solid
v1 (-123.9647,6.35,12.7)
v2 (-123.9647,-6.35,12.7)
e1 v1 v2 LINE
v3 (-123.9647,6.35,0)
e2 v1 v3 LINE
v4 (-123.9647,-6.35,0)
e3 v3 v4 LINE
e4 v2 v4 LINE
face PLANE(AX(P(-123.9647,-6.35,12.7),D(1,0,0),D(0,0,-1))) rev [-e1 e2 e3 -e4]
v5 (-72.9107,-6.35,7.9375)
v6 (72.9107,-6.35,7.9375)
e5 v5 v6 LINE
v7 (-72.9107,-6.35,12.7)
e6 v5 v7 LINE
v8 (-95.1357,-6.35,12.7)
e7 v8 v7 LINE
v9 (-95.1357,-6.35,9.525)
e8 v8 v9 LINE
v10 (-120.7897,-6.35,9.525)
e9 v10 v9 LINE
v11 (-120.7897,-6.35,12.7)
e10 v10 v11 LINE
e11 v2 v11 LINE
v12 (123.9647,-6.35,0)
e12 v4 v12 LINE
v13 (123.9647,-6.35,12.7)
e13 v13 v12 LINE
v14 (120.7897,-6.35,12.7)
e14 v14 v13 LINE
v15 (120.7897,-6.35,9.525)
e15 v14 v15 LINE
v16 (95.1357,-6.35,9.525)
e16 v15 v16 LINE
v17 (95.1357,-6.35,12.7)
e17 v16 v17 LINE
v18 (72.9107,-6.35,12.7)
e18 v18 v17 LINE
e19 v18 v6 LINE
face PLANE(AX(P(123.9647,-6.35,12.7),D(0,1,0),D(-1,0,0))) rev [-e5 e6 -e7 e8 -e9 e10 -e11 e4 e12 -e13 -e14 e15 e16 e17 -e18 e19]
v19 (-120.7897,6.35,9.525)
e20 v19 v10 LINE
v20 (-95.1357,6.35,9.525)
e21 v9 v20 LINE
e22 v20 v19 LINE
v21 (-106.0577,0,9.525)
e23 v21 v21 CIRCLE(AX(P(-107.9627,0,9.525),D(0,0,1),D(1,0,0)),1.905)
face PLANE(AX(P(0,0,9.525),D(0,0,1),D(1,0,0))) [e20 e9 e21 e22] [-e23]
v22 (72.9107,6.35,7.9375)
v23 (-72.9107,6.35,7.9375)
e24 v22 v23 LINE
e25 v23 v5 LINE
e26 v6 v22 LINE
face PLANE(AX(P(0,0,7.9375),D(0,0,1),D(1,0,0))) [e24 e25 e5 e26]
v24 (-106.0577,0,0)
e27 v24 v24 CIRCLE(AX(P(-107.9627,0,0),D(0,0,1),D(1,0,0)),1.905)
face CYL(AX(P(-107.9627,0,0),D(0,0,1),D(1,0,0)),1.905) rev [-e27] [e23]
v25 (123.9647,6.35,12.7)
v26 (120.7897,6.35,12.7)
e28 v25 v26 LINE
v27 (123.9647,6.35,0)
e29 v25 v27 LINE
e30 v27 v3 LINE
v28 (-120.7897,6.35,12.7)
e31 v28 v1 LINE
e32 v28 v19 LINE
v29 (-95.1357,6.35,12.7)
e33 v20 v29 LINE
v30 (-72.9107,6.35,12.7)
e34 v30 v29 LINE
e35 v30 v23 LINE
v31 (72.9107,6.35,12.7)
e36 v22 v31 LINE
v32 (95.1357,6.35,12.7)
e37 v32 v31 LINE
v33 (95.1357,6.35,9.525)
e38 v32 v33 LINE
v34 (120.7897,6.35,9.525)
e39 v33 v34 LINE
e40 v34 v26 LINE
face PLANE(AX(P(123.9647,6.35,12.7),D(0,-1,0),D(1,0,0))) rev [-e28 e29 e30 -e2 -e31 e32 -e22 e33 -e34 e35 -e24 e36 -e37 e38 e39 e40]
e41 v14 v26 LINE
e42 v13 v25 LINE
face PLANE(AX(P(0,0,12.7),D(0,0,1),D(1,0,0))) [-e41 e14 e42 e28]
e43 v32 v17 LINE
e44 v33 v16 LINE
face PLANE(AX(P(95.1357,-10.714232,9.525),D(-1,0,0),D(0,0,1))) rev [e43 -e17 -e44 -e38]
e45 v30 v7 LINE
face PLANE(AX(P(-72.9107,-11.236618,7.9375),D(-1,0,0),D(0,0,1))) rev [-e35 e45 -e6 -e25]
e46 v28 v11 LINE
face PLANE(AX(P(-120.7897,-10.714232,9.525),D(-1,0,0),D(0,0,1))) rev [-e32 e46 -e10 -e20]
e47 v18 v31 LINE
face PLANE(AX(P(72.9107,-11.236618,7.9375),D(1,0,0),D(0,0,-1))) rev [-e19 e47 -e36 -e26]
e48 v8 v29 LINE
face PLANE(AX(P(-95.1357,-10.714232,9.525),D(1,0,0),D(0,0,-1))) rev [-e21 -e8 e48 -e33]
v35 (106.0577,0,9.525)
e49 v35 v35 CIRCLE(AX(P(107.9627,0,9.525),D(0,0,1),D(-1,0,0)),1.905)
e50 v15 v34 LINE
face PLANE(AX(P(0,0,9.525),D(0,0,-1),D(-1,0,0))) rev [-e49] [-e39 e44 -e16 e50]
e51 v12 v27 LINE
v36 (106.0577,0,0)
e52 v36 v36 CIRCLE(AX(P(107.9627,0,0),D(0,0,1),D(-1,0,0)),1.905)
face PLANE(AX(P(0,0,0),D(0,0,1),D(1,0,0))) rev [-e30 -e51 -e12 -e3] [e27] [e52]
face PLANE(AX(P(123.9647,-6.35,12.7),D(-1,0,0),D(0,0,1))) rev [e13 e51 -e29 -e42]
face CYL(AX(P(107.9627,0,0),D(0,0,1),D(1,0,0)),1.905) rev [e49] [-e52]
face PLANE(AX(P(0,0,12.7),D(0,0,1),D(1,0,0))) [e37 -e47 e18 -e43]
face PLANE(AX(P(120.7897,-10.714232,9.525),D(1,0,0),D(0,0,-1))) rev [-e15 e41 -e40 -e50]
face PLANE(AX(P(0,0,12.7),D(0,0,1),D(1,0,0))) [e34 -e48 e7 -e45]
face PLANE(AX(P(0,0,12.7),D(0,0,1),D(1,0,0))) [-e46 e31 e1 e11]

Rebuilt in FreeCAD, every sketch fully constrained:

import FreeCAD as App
import Part
import Sketcher
from FreeCAD import Vector
Q = App.Units.Quantity

doc = App.newDocument("Part")
params = doc.addObject("Spreadsheet::Sheet", "Params")
for row, (alias, value) in enumerate([
    ("sketch1_height", "0.5 in"),
    ("sketch1_width", "9.761 in"),
    ("pad1_length", "0.5 in"),
    ("sketch2_width", "1.01 in"),
    ("pocket1_length", "0.125 in"),
    ("sketch3_width", "5.741 in"),
    ("pocket2_length", "0.1875 in"),
    ("sketch4_diameter", "0.15 in"),
    ("pocket3_length", "0.375 in"),
], start=1):
    params.set(f"A{row}", alias)
    params.set(f"B{row}", "=" + value)
    params.setAlias(f"B{row}", alias)

body = doc.addObject("PartDesign::Body", "Body")

sketch1 = doc.addObject("Sketcher::SketchObject", "Sketch")
body.addObject(sketch1)
sketch1.AttachmentSupport = (doc.XY_Plane, [""])
sketch1.MapMode = "FlatFace"
sketch1.addGeometry(Part.LineSegment(Vector(-124, 6, 0), Vector(-124, -6, 0)), False)
sketch1.addGeometry(Part.LineSegment(Vector(-124, -6, 0), Vector(124, -6, 0)), False)
sketch1.addGeometry(Part.LineSegment(Vector(124, -6, 0), Vector(124, 6, 0)), False)
sketch1.addGeometry(Part.LineSegment(Vector(124, 6, 0), Vector(-124, 6, 0)), False)
sketch1.addConstraint(Sketcher.Constraint("Coincident", 0, 2, 1, 1))
sketch1.addConstraint(Sketcher.Constraint("Coincident", 1, 2, 2, 1))
sketch1.addConstraint(Sketcher.Constraint("Coincident", 2, 2, 3, 1))
sketch1.addConstraint(Sketcher.Constraint("Coincident", 3, 2, 0, 1))
sketch1.addConstraint(Sketcher.Constraint("Vertical", 0))
sketch1.addConstraint(Sketcher.Constraint("Horizontal", 1))
sketch1.addConstraint(Sketcher.Constraint("Vertical", 2))
sketch1.addConstraint(Sketcher.Constraint("Horizontal", 3))
sketch1.addConstraint(Sketcher.Constraint("Symmetric", 0, 2, 2, 2, -1, 1))
sketch1.addConstraint(Sketcher.Constraint("DistanceY", 0, 2, 0, 1, Q("0.5 in")))
sketch1.addConstraint(Sketcher.Constraint("DistanceX", 1, 1, 1, 2, Q("9.761 in")))
sketch1.setExpression("Constraints[9]", "Params.sketch1_height")
sketch1.setExpression("Constraints[10]", "Params.sketch1_width")
pad1 = doc.addObject("PartDesign::Pad", "Pad")
body.addObject(pad1)
pad1.Profile = sketch1
pad1.setExpression("Length", "Params.pad1_length")

sketch2 = doc.addObject("Sketcher::SketchObject", "Sketch001")
body.addObject(sketch2)
sketch2.AttachmentSupport = (doc.XY_Plane, [""])
sketch2.MapMode = "FlatFace"
sketch2.AttachmentOffset = App.Placement(Vector(0, 0, 0.5 * 25.4), App.Rotation())
sketch2.addGeometry(Part.LineSegment(Vector(-121, 11, 0), Vector(-121, -11, 0)), False)
sketch2.addGeometry(Part.LineSegment(Vector(-121, -11, 0), Vector(-95, -11, 0)), False)
sketch2.addGeometry(Part.LineSegment(Vector(-95, -11, 0), Vector(-95, 11, 0)), False)
sketch2.addGeometry(Part.LineSegment(Vector(-95, 11, 0), Vector(-121, 11, 0)), False)
sketch2.addGeometry(Part.LineSegment(Vector(95, 11, 0), Vector(95, -11, 0)), False)
sketch2.addGeometry(Part.LineSegment(Vector(95, -11, 0), Vector(121, -11, 0)), False)
sketch2.addGeometry(Part.LineSegment(Vector(121, -11, 0), Vector(121, 11, 0)), False)
sketch2.addGeometry(Part.LineSegment(Vector(121, 11, 0), Vector(95, 11, 0)), False)
sketch2.addConstraint(Sketcher.Constraint("Coincident", 0, 2, 1, 1))
sketch2.addConstraint(Sketcher.Constraint("Coincident", 1, 2, 2, 1))
sketch2.addConstraint(Sketcher.Constraint("Coincident", 2, 2, 3, 1))
sketch2.addConstraint(Sketcher.Constraint("Coincident", 3, 2, 0, 1))
sketch2.addConstraint(Sketcher.Constraint("Coincident", 4, 2, 5, 1))
sketch2.addConstraint(Sketcher.Constraint("Coincident", 5, 2, 6, 1))
sketch2.addConstraint(Sketcher.Constraint("Coincident", 6, 2, 7, 1))
sketch2.addConstraint(Sketcher.Constraint("Coincident", 7, 2, 4, 1))
sketch2.addConstraint(Sketcher.Constraint("Vertical", 0))
sketch2.addConstraint(Sketcher.Constraint("Horizontal", 1))
sketch2.addConstraint(Sketcher.Constraint("Vertical", 2))
sketch2.addConstraint(Sketcher.Constraint("Horizontal", 3))
sketch2.addConstraint(Sketcher.Constraint("Vertical", 4))
sketch2.addConstraint(Sketcher.Constraint("Horizontal", 5))
sketch2.addConstraint(Sketcher.Constraint("Vertical", 6))
sketch2.addConstraint(Sketcher.Constraint("Horizontal", 7))
sketch2.addConstraint(Sketcher.Constraint("Symmetric", 2, 2, 4, 2, -1, 1))
sketch2.addConstraint(Sketcher.Constraint("Symmetric", 0, 2, 6, 2, -1, 1))
sketch2.addConstraint(Sketcher.Constraint("Horizontal", 1, 2, 4, 2))
sketch2.addConstraint(Sketcher.Constraint("DistanceX", 1, 1, 1, 2, Q("1.01 in")))
sketch2.addConstraint(Sketcher.Constraint("DistanceX", 1, 2, 4, 2, Q("7.491 in")))
sketch2.addConstraint(Sketcher.Constraint("DistanceY", 0, 2, 0, 1, 21.428465))
sketch2.setExpression("Constraints[19]", "Params.sketch2_width")
pocket1 = doc.addObject("PartDesign::Pocket", "Pocket")
body.addObject(pocket1)
pocket1.Profile = sketch2
pocket1.setExpression("Length", "Params.pocket1_length")

sketch3 = doc.addObject("Sketcher::SketchObject", "Sketch002")
body.addObject(sketch3)
sketch3.AttachmentSupport = (doc.XY_Plane, [""])
sketch3.MapMode = "FlatFace"
sketch3.AttachmentOffset = App.Placement(Vector(0, 0, 0.5 * 25.4), App.Rotation())
sketch3.addGeometry(Part.LineSegment(Vector(-73, 11, 0), Vector(-73, -11, 0)), False)
sketch3.addGeometry(Part.LineSegment(Vector(-73, -11, 0), Vector(73, -11, 0)), False)
sketch3.addGeometry(Part.LineSegment(Vector(73, -11, 0), Vector(73, 11, 0)), False)
sketch3.addGeometry(Part.LineSegment(Vector(73, 11, 0), Vector(-73, 11, 0)), False)
sketch3.addConstraint(Sketcher.Constraint("Coincident", 0, 2, 1, 1))
sketch3.addConstraint(Sketcher.Constraint("Coincident", 1, 2, 2, 1))
sketch3.addConstraint(Sketcher.Constraint("Coincident", 2, 2, 3, 1))
sketch3.addConstraint(Sketcher.Constraint("Coincident", 3, 2, 0, 1))
sketch3.addConstraint(Sketcher.Constraint("Vertical", 0))
sketch3.addConstraint(Sketcher.Constraint("Horizontal", 1))
sketch3.addConstraint(Sketcher.Constraint("Vertical", 2))
sketch3.addConstraint(Sketcher.Constraint("Horizontal", 3))
sketch3.addConstraint(Sketcher.Constraint("Symmetric", 0, 2, 2, 2, -1, 1))
sketch3.addConstraint(Sketcher.Constraint("DistanceX", 1, 1, 1, 2, Q("5.741 in")))
sketch3.addConstraint(Sketcher.Constraint("DistanceY", 0, 2, 0, 1, 22.473236))
sketch3.setExpression("Constraints[9]", "Params.sketch3_width")
pocket2 = doc.addObject("PartDesign::Pocket", "Pocket001")
body.addObject(pocket2)
pocket2.Profile = sketch3
pocket2.setExpression("Length", "Params.pocket2_length")

sketch4 = doc.addObject("Sketcher::SketchObject", "Sketch003")
body.addObject(sketch4)
sketch4.AttachmentSupport = (doc.XY_Plane, [""])
sketch4.MapMode = "FlatFace"
sketch4.addGeometry(Part.Circle(Vector(-108, 0, 0), Vector(0, 0, 1), 1.9), False)
sketch4.addGeometry(Part.Circle(Vector(108, 0, 0), Vector(0, 0, 1), 1.9), False)
sketch4.addConstraint(Sketcher.Constraint("Equal", 0, 1))
sketch4.addConstraint(Sketcher.Constraint("Symmetric", 0, 3, 1, 3, -1, 1))
sketch4.addConstraint(Sketcher.Constraint("PointOnObject", 0, 3, -1))
sketch4.addConstraint(Sketcher.Constraint("Diameter", 0, Q("0.15 in")))
sketch4.addConstraint(Sketcher.Constraint("DistanceX", 0, 3, 1, 3, Q("8.501 in")))
sketch4.setExpression("Constraints[3]", "Params.sketch4_diameter")
pocket3 = doc.addObject("PartDesign::Pocket", "Pocket002")
body.addObject(pocket3)
pocket3.Profile = sketch4
pocket3.setExpression("Length", "Params.pocket3_length")
pocket3.Reversed = True

doc.recompute()
